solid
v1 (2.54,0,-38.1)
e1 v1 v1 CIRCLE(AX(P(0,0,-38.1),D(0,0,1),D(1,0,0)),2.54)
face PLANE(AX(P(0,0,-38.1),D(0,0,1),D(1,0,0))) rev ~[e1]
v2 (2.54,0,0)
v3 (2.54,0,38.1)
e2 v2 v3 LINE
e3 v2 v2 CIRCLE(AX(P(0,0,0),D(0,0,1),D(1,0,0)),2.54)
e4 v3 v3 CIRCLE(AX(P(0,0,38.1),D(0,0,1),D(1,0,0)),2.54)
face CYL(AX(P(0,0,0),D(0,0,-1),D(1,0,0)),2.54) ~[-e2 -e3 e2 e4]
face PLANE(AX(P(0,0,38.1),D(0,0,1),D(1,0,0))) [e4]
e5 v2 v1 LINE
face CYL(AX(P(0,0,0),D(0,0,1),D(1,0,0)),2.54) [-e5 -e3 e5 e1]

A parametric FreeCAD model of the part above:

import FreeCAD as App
import Part
import Sketcher

V = App.Vector
Q = App.Units.Quantity

doc = App.newDocument("Part")
body = doc.addObject("PartDesign::Body", "Body")

sketch1 = body.newObject("Sketcher::SketchObject", "Sketch")
sketch1.AttachmentSupport = (doc.getObject("XY_Plane"), [""])
sketch1.MapMode = "FlatFace"
sketch1.addGeometry(Part.Circle(V(0, 0, 0), V(0, 0, 1), 2.54), False)
sketch1.addConstraint([
    Sketcher.Constraint("Coincident", 0, 3, -1, 1),
    Sketcher.Constraint("Diameter", 0, Q("0.2 in")),
])
pad1 = body.newObject("PartDesign::Pad", "Pad")
pad1.Profile = sketch1
pad1.Length = Q("3 in")
pad1.Midplane = True

doc.recompute()
